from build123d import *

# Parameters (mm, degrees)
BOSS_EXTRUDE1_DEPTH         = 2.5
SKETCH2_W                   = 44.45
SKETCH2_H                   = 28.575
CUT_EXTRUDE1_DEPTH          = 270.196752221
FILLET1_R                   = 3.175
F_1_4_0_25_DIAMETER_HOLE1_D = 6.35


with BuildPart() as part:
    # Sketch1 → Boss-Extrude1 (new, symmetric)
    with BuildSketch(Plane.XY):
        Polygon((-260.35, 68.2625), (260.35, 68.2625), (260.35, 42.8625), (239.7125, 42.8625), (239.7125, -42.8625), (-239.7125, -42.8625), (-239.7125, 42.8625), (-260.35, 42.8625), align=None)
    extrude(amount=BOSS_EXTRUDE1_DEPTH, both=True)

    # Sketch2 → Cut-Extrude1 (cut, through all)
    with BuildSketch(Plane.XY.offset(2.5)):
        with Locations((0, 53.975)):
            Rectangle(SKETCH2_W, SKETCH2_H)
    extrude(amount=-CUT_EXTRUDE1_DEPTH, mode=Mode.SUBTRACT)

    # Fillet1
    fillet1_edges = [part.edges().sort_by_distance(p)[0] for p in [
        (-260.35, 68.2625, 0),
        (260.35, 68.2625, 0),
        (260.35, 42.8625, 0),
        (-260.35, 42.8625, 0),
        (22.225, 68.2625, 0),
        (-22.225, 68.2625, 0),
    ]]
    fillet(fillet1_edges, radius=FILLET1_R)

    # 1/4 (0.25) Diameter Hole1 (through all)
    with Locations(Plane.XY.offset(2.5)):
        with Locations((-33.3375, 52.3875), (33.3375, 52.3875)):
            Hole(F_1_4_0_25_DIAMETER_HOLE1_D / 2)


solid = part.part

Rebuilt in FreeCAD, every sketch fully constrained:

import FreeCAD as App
import Part
import Sketcher
Q = App.Units.Quantity


def edges_at(feature, points):
    """Names of the edges that pass closest to the given points."""
    edges = feature.Shape.Edges
    near = lambda p: min(range(len(edges)), key=lambda i: edges[i].distToShape(Part.Vertex(*p))[0])
    return sorted({f"Edge{near(p) + 1}" for p in points})


def add_polygon(sketch, points):
    """Adds a closed chain of lines whose ends are joined by coincident constraints."""
    first, n = sketch.GeometryCount, len(points)
    for a, b in zip(points, points[1:] + points[:1]):
        sketch.addGeometry(Part.LineSegment(App.Vector(*a, 0), App.Vector(*b, 0)), False)
    for i in range(n):
        sketch.addConstraint(Sketcher.Constraint("Coincident", first + i, 2, first + (i + 1) % n, 1))

doc = App.newDocument("Part")
body = doc.addObject("PartDesign::Body", "Body")

# Sketch on XY plane
sketch1 = body.newObject("Sketcher::SketchObject", "Sketch")
sketch1.AttachmentSupport = (doc.getObject("XY_Plane"), [""])
sketch1.MapMode = "FlatFace"
add_polygon(sketch1, [(260, 68), (-260, 68), (-260, 43), (-240, 43), (-240, -43), (240, -43), (240, 43), (260, 43)])  # lines 0-7
sketch1.addConstraint(Sketcher.Constraint("Horizontal", 0))
sketch1.addConstraint(Sketcher.Constraint("Vertical", 1))
sketch1.addConstraint(Sketcher.Constraint("Horizontal", 2))
sketch1.addConstraint(Sketcher.Constraint("Vertical", 3))
sketch1.addConstraint(Sketcher.Constraint("Horizontal", 4))
sketch1.addConstraint(Sketcher.Constraint("Vertical", 5))
sketch1.addConstraint(Sketcher.Constraint("Horizontal", 6))
sketch1.addConstraint(Sketcher.Constraint("Vertical", 7))
sketch1.addConstraint(Sketcher.Constraint("Symmetric", 2, 2, 4, 2, -1, 1))
sketch1.addConstraint(Sketcher.Constraint("Symmetric", 1, 2, 6, 2, -2))
sketch1.addConstraint(Sketcher.Constraint("DistanceY", 1, 2, 1, 1, Q("1 in")))
sketch1.addConstraint(Sketcher.Constraint("DistanceX", 0, 2, 0, 1, Q("20.5 in")))
sketch1.addConstraint(Sketcher.Constraint("DistanceX", 2, 1, 2, 2, Q("0.8125 in")))
sketch1.addConstraint(Sketcher.Constraint("DistanceY", 3, 2, 3, 1, Q("3.375 in")))
pad1 = body.newObject("PartDesign::Pad", "Pad")
pad1.Profile = sketch1
pad1.Length = 5
pad1.Midplane = True

# Sketch on XY plane
sketch2 = body.newObject("Sketcher::SketchObject", "Sketch001")
sketch2.AttachmentSupport = (doc.getObject("XY_Plane"), [""])
sketch2.MapMode = "FlatFace"
sketch2.AttachmentOffset = App.Placement(App.Vector(0, 0, 2.5), App.Rotation())
add_polygon(sketch2, [(-22, 68), (-22, 40), (22, 40), (22, 68)])  # lines 0-3
sketch2.addConstraint(Sketcher.Constraint("Vertical", 0))
sketch2.addConstraint(Sketcher.Constraint("Horizontal", 1))
sketch2.addConstraint(Sketcher.Constraint("Vertical", 2))
sketch2.addConstraint(Sketcher.Constraint("Horizontal", 3))
sketch2.addConstraint(Sketcher.Constraint("DistanceX", 1, 1, 1, 2, Q("1.75 in")))
sketch2.addConstraint(Sketcher.Constraint("DistanceY", 0, 2, 0, 1, Q("1.125 in")))
sketch2.addConstraint(Sketcher.Constraint("DistanceX", 0, 2, -1, 1, Q("0.875 in")))
sketch2.addConstraint(Sketcher.Constraint("DistanceY", -1, 1, 0, 2, Q("1.5625 in")))
pocket1 = body.newObject("PartDesign::Pocket", "Pocket")
pocket1.Profile = sketch2
pocket1.Type = "ThroughAll"
doc.recompute()

fillet = body.newObject("PartDesign::Fillet", "Fillet")
fillet.Base = (pocket1, edges_at(pocket1, [
    (-260.35, 68.263, 0),
    (260.35, 68.263, 0),
    (260.35, 42.862, 0),
    (-260.35, 42.862, 0),
    (22.225, 68.263, 0),
    (-22.225, 68.263, 0),
]))
fillet.Radius = Q("0.125 in")

# Sketch on XY plane
sketch3 = body.newObject("Sketcher::SketchObject", "Sketch002")
sketch3.AttachmentSupport = (doc.getObject("XY_Plane"), [""])
sketch3.MapMode = "FlatFace"
sketch3.AttachmentOffset = App.Placement(App.Vector(0, 0, 2.5), App.Rotation())
sketch3.addGeometry(Part.Circle(App.Vector(-33.3, 52.4, 0), App.Vector(0, 0, 1), 3.2), False)
sketch3.addGeometry(Part.Circle(App.Vector(33.3, 52.4, 0), App.Vector(0, 0, 1), 3.2), False)
sketch3.addConstraint(Sketcher.Constraint("Equal", 0, 1))
sketch3.addConstraint(Sketcher.Constraint("Symmetric", 0, 3, 1, 3, -2))
sketch3.addConstraint(Sketcher.Constraint("Diameter", 0, Q("0.25 in")))
sketch3.addConstraint(Sketcher.Constraint("DistanceX", 0, 3, -1, 1, Q("1.3125 in")))
sketch3.addConstraint(Sketcher.Constraint("DistanceY", -1, 1, 0, 3, Q("2.0625 in")))
doc.recompute()
hole = body.newObject("PartDesign::Hole", "Hole")
hole.Profile = sketch3
hole.ThreadType = "None"
hole.Diameter = Q("0.25 in")
hole.DepthType = "ThroughAll"

doc.recompute()
